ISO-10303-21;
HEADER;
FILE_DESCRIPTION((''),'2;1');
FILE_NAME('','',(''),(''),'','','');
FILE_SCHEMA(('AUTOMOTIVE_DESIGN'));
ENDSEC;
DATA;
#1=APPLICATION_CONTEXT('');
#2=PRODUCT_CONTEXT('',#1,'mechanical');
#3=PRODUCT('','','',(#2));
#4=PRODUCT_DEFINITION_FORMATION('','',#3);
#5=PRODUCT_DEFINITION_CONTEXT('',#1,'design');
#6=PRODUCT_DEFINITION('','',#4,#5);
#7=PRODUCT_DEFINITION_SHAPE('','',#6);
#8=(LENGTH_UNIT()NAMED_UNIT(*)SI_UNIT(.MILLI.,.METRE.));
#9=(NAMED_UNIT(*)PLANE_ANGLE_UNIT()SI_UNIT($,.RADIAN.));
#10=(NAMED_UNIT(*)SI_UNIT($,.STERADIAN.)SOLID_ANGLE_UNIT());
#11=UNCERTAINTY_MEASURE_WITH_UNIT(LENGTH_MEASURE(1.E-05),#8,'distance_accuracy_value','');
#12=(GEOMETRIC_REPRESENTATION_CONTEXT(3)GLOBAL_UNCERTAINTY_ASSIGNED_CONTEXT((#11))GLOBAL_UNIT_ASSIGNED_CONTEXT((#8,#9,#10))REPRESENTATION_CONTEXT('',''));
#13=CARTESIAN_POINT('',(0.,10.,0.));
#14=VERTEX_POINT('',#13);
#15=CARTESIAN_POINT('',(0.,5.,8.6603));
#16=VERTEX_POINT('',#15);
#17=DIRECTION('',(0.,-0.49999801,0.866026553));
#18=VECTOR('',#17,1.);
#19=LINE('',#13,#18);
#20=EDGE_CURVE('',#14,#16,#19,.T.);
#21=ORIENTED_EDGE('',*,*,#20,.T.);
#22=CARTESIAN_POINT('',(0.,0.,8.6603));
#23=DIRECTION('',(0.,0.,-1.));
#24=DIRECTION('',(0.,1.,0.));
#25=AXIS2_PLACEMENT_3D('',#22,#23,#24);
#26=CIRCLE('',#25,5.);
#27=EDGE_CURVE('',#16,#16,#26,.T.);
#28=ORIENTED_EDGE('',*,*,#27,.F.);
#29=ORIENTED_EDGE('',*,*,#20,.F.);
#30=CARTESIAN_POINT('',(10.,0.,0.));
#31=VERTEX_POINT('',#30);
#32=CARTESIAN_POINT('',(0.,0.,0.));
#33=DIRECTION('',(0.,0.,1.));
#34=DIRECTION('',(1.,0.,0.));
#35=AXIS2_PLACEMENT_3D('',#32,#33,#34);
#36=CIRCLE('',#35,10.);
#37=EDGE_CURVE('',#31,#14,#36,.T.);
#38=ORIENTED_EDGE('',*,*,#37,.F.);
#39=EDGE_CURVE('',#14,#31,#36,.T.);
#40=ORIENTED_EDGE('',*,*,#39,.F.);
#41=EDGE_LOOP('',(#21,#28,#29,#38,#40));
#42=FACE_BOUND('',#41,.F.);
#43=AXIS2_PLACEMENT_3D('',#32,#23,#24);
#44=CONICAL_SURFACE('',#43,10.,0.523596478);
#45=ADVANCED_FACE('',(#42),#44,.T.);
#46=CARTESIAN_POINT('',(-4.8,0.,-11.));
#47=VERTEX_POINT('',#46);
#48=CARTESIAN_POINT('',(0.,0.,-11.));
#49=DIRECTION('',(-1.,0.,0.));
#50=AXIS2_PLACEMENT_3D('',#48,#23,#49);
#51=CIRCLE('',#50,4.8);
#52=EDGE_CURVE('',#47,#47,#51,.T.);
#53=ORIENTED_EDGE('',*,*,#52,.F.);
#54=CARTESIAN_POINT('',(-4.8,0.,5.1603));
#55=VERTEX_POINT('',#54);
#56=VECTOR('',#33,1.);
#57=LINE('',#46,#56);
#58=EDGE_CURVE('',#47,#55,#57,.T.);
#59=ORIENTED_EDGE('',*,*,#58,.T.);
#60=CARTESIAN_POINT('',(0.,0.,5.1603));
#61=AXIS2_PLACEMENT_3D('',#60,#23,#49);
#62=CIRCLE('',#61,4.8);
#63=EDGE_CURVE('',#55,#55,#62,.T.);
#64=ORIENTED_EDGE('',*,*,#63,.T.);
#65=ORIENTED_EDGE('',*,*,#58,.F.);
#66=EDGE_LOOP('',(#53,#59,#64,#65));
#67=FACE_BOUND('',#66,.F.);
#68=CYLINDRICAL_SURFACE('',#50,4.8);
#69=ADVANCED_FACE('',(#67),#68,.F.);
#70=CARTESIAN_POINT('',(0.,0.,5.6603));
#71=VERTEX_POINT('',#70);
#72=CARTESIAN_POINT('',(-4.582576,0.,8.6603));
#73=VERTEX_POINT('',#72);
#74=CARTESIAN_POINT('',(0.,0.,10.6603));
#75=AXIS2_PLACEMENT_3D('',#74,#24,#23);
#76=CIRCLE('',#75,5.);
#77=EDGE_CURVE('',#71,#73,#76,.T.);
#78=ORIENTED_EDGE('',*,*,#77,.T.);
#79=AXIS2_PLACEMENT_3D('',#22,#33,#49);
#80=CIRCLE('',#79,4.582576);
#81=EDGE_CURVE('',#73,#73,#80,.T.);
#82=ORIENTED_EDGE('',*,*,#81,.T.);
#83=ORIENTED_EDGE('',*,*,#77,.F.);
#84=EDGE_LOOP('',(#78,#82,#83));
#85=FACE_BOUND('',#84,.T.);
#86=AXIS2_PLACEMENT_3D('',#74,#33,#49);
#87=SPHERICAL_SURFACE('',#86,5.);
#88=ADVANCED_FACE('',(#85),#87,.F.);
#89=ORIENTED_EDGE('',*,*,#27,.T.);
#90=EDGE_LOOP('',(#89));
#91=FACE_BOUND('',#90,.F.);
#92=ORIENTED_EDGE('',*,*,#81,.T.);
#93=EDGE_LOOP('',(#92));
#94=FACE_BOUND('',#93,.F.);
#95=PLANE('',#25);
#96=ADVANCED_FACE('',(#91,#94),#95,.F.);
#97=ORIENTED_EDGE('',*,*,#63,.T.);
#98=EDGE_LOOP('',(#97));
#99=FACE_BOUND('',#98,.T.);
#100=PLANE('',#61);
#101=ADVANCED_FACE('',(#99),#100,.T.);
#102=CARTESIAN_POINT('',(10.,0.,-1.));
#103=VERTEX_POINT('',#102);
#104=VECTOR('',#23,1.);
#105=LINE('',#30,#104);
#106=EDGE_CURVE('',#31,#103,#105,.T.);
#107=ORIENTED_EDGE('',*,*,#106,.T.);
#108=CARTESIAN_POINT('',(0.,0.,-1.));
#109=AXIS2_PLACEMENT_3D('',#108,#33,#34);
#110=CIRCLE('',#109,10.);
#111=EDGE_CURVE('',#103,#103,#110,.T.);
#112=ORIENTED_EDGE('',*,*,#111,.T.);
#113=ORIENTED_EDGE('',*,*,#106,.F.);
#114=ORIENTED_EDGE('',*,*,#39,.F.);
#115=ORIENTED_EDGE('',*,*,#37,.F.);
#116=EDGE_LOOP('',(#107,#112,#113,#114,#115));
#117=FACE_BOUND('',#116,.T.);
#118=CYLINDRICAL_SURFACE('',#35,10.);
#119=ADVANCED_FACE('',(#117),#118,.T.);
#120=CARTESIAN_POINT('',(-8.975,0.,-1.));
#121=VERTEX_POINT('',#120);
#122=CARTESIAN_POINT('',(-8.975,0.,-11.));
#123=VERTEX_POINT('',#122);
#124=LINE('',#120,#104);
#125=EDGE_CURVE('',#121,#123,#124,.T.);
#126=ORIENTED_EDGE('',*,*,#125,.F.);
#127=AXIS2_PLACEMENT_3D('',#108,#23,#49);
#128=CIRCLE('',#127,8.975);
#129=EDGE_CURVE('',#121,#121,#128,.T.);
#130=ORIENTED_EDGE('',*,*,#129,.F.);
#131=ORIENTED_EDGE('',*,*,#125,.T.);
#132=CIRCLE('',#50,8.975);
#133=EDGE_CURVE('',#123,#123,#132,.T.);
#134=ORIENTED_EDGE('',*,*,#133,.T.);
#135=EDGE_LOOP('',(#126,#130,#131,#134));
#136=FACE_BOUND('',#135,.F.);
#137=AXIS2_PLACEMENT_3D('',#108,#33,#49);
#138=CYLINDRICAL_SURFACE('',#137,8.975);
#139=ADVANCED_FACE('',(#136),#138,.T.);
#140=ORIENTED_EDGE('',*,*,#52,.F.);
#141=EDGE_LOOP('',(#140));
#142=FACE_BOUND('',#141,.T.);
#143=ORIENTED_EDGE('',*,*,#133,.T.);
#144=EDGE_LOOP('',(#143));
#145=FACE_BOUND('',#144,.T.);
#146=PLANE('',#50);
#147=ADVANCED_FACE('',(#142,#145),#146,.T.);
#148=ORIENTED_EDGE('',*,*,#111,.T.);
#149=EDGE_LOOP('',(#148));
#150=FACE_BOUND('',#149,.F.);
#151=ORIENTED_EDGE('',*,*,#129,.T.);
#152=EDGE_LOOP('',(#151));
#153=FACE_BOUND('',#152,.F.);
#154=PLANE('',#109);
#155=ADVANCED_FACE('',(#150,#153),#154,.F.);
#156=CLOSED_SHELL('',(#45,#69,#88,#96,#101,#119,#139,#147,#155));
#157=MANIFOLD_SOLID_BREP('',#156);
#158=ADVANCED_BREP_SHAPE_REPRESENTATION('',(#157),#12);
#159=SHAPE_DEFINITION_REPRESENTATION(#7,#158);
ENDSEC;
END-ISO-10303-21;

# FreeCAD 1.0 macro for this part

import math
import FreeCAD as App
import Part
import Sketcher

V = App.Vector


def add_polygon(sketch, points):
    """Adds a closed chain of lines whose ends are joined by coincident constraints."""
    first, n = sketch.GeometryCount, len(points)
    for a, b in zip(points, points[1:] + points[:1]):
        sketch.addGeometry(Part.LineSegment(App.Vector(*a, 0), App.Vector(*b, 0)), False)
    for i in range(n):
        sketch.addConstraint(Sketcher.Constraint("Coincident", first + i, 2, first + (i + 1) % n, 1))

doc = App.newDocument("Part")
body = doc.addObject("PartDesign::Body", "Body")

# Sketch on XY plane
sketch1 = body.newObject("Sketcher::SketchObject", "Sketch")
sketch1.AttachmentSupport = (doc.getObject("XY_Plane"), [""])
sketch1.MapMode = "FlatFace"
sketch1.addGeometry(Part.Circle(V(0, 0, 0), V(0, 0, 1), 10), False)
sketch1.addConstraint([
    Sketcher.Constraint("Coincident", 0, 3, -1, 1),
    Sketcher.Constraint("Diameter", 0, 20.0),
])
pad1 = body.newObject("PartDesign::Pad", "Pad")
pad1.Profile = sketch1
pad1.Length = 1
pad1.Reversed = True

# Sketch on XY plane
sketch2 = body.newObject("Sketcher::SketchObject", "Sketch001")
sketch2.AttachmentSupport = (doc.getObject("XY_Plane"), [""])
sketch2.MapMode = "FlatFace"
sketch2.AttachmentOffset = App.Placement(V(0, 0, -1), App.Rotation())
sketch2.addGeometry(Part.Circle(V(0, 0, 0), V(0, 0, 1), 9), False)
sketch2.addConstraint([
    Sketcher.Constraint("Coincident", 0, 3, -1, 1),
    Sketcher.Constraint("Diameter", 0, 17.95),
])
pad2 = body.newObject("PartDesign::Pad", "Pad001")
pad2.Profile = sketch2
pad2.Length = 10
pad2.Reversed = True

# Sketch on YZ plane
sketch3 = body.newObject("Sketcher::SketchObject", "Sketch002")
sketch3.AttachmentSupport = (doc.getObject("YZ_Plane"), [""])
sketch3.MapMode = "FlatFace"
add_polygon(sketch3, [(0, 9), (0, 0), (10, 0), (5, 9)])  # lines 0-3
sketch3.addConstraint([
    Sketcher.Constraint("Vertical", 0),
    Sketcher.Constraint("Horizontal", 1),
    Sketcher.Constraint("Horizontal", 3),
    Sketcher.Constraint("Coincident", 0, 2, -1, 1),
    Sketcher.Constraint("DistanceX", 1, 1, 1, 2, 10.0),
    Sketcher.Constraint("DistanceX", 3, 2, 3, 1, 5.0),
    Sketcher.Constraint("Distance", 2, 10.0),
])
revolution = body.newObject("PartDesign::Revolution", "Revolution")
revolution.Profile = sketch3
revolution.ReferenceAxis = (sketch3, ["V_Axis"])
revolution.Angle = 360

# Sketch on XZ plane
sketch4 = body.newObject("Sketcher::SketchObject", "Sketch003")
sketch4.AttachmentSupport = (doc.getObject("XZ_Plane"), [""])
sketch4.MapMode = "FlatFace"
sketch4.addGeometry([
    Part.ArcOfCircle(Part.Circle(V(0, 10.7, 0), V(0, 0, 1), 5), math.radians(90), math.radians(270)),
    Part.LineSegment(V(0, 15.7, 0), V(0, 5.7, 0)),
], False)
sketch4.addConstraint([
    Sketcher.Constraint("Coincident", 0, 1, 1, 1),
    Sketcher.Constraint("Coincident", 1, 2, 0, 2),
    Sketcher.Constraint("Vertical", 1),
    Sketcher.Constraint("PointOnObject", 0, 3, -2),
    Sketcher.Constraint("PointOnObject", 0, 1, -2),
    Sketcher.Constraint("Radius", 0, 5.0),
    Sketcher.Constraint("DistanceY", -1, 1, 0, 3, 10.6603),
])
groove = body.newObject("PartDesign::Groove", "Groove")
groove.Profile = sketch4
groove.ReferenceAxis = (sketch4, ["V_Axis"])
groove.Angle = 360

# Sketch on XY plane
sketch5 = body.newObject("Sketcher::SketchObject", "Sketch004")
sketch5.AttachmentSupport = (doc.getObject("XY_Plane"), [""])
sketch5.MapMode = "FlatFace"
sketch5.AttachmentOffset = App.Placement(V(0, 0, -11), App.Rotation())
sketch5.addGeometry(Part.Circle(V(0, 0, 0), V(0, 0, 1), 4.8), False)
sketch5.addConstraint([
    Sketcher.Constraint("Coincident", 0, 3, -1, 1),
    Sketcher.Constraint("Diameter", 0, 9.6),
])
pocket1 = body.newObject("PartDesign::Pocket", "Pocket")
pocket1.Profile = sketch5
pocket1.Length = 16.1603
pocket1.Reversed = True

doc.recompute()
